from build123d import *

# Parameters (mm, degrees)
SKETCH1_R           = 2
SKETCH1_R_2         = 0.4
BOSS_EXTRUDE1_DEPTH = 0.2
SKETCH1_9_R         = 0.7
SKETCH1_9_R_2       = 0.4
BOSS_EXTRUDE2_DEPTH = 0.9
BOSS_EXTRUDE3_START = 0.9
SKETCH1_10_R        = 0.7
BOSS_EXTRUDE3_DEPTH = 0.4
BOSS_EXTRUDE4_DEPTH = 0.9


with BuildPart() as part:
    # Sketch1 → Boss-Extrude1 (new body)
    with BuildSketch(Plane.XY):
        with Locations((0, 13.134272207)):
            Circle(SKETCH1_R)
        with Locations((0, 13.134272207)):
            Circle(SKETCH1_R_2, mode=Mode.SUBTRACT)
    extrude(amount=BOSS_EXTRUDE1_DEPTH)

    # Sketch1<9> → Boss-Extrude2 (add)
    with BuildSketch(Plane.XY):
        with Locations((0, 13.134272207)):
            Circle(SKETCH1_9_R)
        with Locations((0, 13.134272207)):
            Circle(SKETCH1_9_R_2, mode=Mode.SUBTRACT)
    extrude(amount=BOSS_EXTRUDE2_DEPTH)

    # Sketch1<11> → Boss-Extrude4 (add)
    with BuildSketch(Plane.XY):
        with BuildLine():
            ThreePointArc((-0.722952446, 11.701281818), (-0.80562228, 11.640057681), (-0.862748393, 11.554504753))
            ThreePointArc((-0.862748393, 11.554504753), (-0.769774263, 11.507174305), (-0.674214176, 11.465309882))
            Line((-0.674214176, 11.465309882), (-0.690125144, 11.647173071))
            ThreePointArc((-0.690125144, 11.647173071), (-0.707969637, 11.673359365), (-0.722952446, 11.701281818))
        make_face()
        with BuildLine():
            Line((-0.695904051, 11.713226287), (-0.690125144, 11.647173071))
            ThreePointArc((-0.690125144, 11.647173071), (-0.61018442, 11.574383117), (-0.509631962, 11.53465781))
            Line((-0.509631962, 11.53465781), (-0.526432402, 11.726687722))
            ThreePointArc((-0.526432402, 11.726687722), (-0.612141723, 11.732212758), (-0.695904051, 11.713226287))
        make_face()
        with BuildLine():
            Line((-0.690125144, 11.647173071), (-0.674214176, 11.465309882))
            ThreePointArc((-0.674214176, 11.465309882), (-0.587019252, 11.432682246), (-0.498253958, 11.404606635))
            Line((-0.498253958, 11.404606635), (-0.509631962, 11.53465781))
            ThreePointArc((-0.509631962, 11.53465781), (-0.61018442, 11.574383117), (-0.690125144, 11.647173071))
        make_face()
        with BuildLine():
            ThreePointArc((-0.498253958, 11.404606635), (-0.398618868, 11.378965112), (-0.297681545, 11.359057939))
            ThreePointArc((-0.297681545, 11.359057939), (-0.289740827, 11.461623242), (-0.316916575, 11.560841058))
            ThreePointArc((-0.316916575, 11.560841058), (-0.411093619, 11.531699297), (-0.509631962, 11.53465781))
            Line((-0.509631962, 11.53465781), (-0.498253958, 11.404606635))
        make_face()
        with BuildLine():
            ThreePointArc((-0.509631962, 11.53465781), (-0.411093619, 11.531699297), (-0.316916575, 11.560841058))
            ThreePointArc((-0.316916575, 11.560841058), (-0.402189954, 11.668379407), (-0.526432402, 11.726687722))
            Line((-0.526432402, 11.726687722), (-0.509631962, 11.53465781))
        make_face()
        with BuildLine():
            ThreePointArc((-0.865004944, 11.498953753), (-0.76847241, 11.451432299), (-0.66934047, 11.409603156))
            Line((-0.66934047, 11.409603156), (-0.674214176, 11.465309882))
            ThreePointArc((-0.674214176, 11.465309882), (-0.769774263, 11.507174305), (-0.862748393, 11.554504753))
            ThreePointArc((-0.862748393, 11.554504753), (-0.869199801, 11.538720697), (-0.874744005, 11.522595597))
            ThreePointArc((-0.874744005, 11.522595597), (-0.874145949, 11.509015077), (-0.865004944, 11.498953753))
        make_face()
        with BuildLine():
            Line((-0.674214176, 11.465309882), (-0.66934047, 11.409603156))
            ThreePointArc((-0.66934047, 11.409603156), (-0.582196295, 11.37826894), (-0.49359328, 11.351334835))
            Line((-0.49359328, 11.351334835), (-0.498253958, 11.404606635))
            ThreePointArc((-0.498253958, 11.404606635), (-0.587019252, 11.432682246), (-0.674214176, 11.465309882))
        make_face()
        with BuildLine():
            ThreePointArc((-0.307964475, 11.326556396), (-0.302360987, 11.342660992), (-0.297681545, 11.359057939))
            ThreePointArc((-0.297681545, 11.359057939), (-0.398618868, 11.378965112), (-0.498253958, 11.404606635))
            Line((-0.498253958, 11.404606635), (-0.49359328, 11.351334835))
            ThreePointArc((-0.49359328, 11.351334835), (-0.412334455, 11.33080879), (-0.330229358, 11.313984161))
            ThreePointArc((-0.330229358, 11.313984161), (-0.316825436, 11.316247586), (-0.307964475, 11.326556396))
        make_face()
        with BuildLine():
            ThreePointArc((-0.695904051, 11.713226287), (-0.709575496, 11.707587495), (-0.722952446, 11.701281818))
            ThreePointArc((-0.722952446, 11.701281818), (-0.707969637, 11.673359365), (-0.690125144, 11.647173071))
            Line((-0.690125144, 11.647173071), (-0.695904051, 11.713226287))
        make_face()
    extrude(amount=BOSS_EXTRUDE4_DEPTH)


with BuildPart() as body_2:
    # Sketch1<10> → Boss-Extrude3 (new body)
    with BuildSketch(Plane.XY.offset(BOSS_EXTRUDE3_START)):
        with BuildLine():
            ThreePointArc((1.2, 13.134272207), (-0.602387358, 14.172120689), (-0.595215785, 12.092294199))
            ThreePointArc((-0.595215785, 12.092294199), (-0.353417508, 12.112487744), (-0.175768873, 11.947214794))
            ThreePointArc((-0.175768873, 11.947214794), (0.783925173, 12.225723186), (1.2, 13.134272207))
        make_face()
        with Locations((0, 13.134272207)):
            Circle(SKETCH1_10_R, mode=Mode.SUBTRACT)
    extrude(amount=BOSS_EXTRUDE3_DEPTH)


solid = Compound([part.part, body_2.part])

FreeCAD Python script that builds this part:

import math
import FreeCAD as App
import Part
import Sketcher

V = App.Vector
Q = App.Units.Quantity

doc = App.newDocument("Part")
body = doc.addObject("PartDesign::Body", "Body")

sketch1 = body.newObject("Sketcher::SketchObject", "Sketch")
sketch1.AttachmentSupport = (doc.getObject("XY_Plane"), [""])
sketch1.MapMode = "FlatFace"
sketch1.addGeometry(Part.Circle(V(0, 13.13, 0), V(0, 0, 1), 2), False)
sketch1.addGeometry(Part.Circle(V(0, 13.13, 0), V(0, 0, 1), 0.4), False)
sketch1.addConstraint(Sketcher.Constraint("Coincident", 1, 3, 0, 3))
sketch1.addConstraint(Sketcher.Constraint("PointOnObject", 0, 3, -2))
sketch1.addConstraint(Sketcher.Constraint("Diameter", 0, Q("4 mm")))
sketch1.addConstraint(Sketcher.Constraint("Diameter", 1, Q("0.8 mm")))
sketch1.addConstraint(Sketcher.Constraint("DistanceY", -1, 1, 0, 3, Q("13.134272 mm")))
pad1 = body.newObject("PartDesign::Pad", "Pad")
pad1.Profile = sketch1
pad1.Length = 0.2

sketch2 = body.newObject("Sketcher::SketchObject", "Sketch001")
sketch2.AttachmentSupport = (doc.getObject("XY_Plane"), [""])
sketch2.MapMode = "FlatFace"
sketch2.addGeometry(Part.Circle(V(0, 13.13, 0), V(0, 0, 1), 0.7), False)
sketch2.addGeometry(Part.Circle(V(0, 13.13, 0), V(0, 0, 1), 0.4), False)
sketch2.addConstraint(Sketcher.Constraint("Coincident", 1, 3, 0, 3))
sketch2.addConstraint(Sketcher.Constraint("PointOnObject", 0, 3, -2))
sketch2.addConstraint(Sketcher.Constraint("Diameter", 0, Q("1.4 mm")))
sketch2.addConstraint(Sketcher.Constraint("Diameter", 1, Q("0.8 mm")))
sketch2.addConstraint(Sketcher.Constraint("DistanceY", -1, 1, 0, 3, Q("13.134272 mm")))
pad2 = body.newObject("PartDesign::Pad", "Pad001")
pad2.Profile = sketch2
pad2.Length = 0.9

sketch3 = body.newObject("Sketcher::SketchObject", "Sketch002")
sketch3.AttachmentSupport = (doc.getObject("XY_Plane"), [""])
sketch3.MapMode = "FlatFace"
sketch3.addGeometry(Part.ArcOfCircle(Part.Circle(V(-0.588, 11.433, 0), V(0, 0, 1), 0.3), math.radians(117), math.radians(156)), False)
sketch3.addGeometry(Part.ArcOfCircle(Part.Circle(V(-0.588, 11.433, 0), V(0, 0, 1), 0.3), math.radians(156.14), math.radians(162.65)), False)
sketch3.addGeometry(Part.ArcOfCircle(Part.Circle(V(-0.856, 11.517, 0), V(0, 0, 1), 0.02), math.radians(163), math.radians(242)), False)
sketch3.addGeometry(Part.ArcOfCircle(Part.Circle(V(0, 13.134, 0), V(0, 0, 1), 1.85), math.radians(-117.88), math.radians(-111.21)), False)
sketch3.addGeometry(Part.ArcOfCircle(Part.Circle(V(0, 13.134, 0), V(0, 0, 1), 1.85), math.radians(-111.21), math.radians(-105.47)), False)
sketch3.addGeometry(Part.ArcOfCircle(Part.Circle(V(0, 13.134, 0), V(0, 0, 1), 1.85), math.radians(-105.47), math.radians(-100.28)), False)
sketch3.addGeometry(Part.ArcOfCircle(Part.Circle(V(-0.327, 11.334, 0), V(0, 0, 1), 0.02), math.radians(-100), math.radians(-21)), False)
sketch3.addGeometry(Part.ArcOfCircle(Part.Circle(V(-0.588, 11.433, 0), V(0, 0, 1), 0.3), math.radians(-20.81), math.radians(-14.3)), False)
sketch3.addGeometry(Part.ArcOfCircle(Part.Circle(V(-0.588, 11.433, 0), V(0, 0, 1), 0.3), math.radians(-14), math.radians(25)), False)
sketch3.addGeometry(Part.ArcOfCircle(Part.Circle(V(-0.588, 11.433, 0), V(0, 0, 1), 0.3), math.radians(25), math.radians(78)), False)
sketch3.addGeometry(Part.ArcOfCircle(Part.Circle(V(-0.588, 11.433, 0), V(0, 0, 1), 0.3), math.radians(78), math.radians(111)), False)
sketch3.addGeometry(Part.ArcOfCircle(Part.Circle(V(-0.588, 11.433, 0), V(0, 0, 1), 0.3), math.radians(111), math.radians(116.65)), False)
sketch3.addConstraint(Sketcher.Constraint("Tangent", 0, 2, 1, 1))
sketch3.addConstraint(Sketcher.Constraint("Tangent", 1, 2, 2, 1))
sketch3.addConstraint(Sketcher.Constraint("Tangent", 2, 2, 3, 1))
sketch3.addConstraint(Sketcher.Constraint("Tangent", 3, 2, 4, 1))
sketch3.addConstraint(Sketcher.Constraint("Tangent", 4, 2, 5, 1))
sketch3.addConstraint(Sketcher.Constraint("Tangent", 5, 2, 6, 1))
sketch3.addConstraint(Sketcher.Constraint("Tangent", 6, 2, 7, 1))
sketch3.addConstraint(Sketcher.Constraint("Tangent", 7, 2, 8, 1))
sketch3.addConstraint(Sketcher.Constraint("Tangent", 8, 2, 9, 1))
sketch3.addConstraint(Sketcher.Constraint("Tangent", 9, 2, 10, 1))
sketch3.addConstraint(Sketcher.Constraint("Tangent", 10, 2, 11, 1))
sketch3.addConstraint(Sketcher.Constraint("Tangent", 11, 2, 0, 1))
sketch3.addConstraint(Sketcher.Constraint("Coincident", 5, 3, 3, 3))
sketch3.addConstraint(Sketcher.Constraint("Coincident", 7, 3, 0, 3))
sketch3.addConstraint(Sketcher.Constraint("Coincident", 9, 3, 0, 3))
sketch3.addConstraint(Sketcher.Constraint("Equal", 0, 1))
sketch3.addConstraint(Sketcher.Constraint("Equal", 2, 6))
sketch3.addConstraint(Sketcher.Constraint("Equal", 1, 7))
sketch3.addConstraint(Sketcher.Constraint("PointOnObject", 3, 3, -2))
sketch3.addConstraint(Sketcher.Constraint("Radius", 0, Q("0.3 mm")))
sketch3.addConstraint(Sketcher.Constraint("Radius", 2, Q("0.02 mm")))
sketch3.addConstraint(Sketcher.Constraint("Radius", 3, Q("1.85 mm")))
sketch3.addConstraint(Sketcher.Constraint("DistanceY", 11, 3, 2, 2, Q("0.065799 mm")))
sketch3.addConstraint(Sketcher.Constraint("DistanceY", 6, 2, 7, 3, Q("0.106598 mm")))
sketch3.addConstraint(Sketcher.Constraint("DistanceY", 6, 2, 7, 2, Q("0.032502 mm")))
sketch3.addConstraint(Sketcher.Constraint("DistanceX", 2, 2, 10, 2, Q("0.169101 mm")))
sketch3.addConstraint(Sketcher.Constraint("DistanceX", 2, 3, 11, 2, Q("0.132701 mm")))
sketch3.addConstraint(Sketcher.Constraint("DistanceX", 0, 2, -1, 1, Q("0.862748 mm")))
sketch3.addConstraint(Sketcher.Constraint("DistanceX", 3, 2, -1, 1, Q("0.66934 mm")))
sketch3.addConstraint(Sketcher.Constraint("DistanceY", -1, 1, 8, 2, Q("11.560841 mm")))
sketch3.addConstraint(Sketcher.Constraint("DistanceY", -1, 1, 11, 2, Q("11.701282 mm")))
sketch3.addConstraint(Sketcher.Constraint("DistanceY", 4, 2, 7, 3, Q("0.08182 mm")))
sketch3.addConstraint(Sketcher.Constraint("DistanceX", 10, 2, 9, 2, Q("0.169472 mm")))
pad3 = body.newObject("PartDesign::Pad", "Pad002")
pad3.Profile = sketch3
pad3.Length = 0.9
body2 = doc.addObject("PartDesign::Body", "Body001")

sketch4 = body2.newObject("Sketcher::SketchObject", "Sketch003")
sketch4.AttachmentSupport = (doc.getObject("XY_Plane001"), [""])
sketch4.MapMode = "FlatFace"
sketch4.AttachmentOffset = App.Placement(V(0, 0, 0.9), App.Rotation())
sketch4.addGeometry(Part.ArcOfCircle(Part.Circle(V(0, 13.13, 0), V(0, 0, 1), 1.2), math.radians(0), math.radians(240)), False)
sketch4.addGeometry(Part.ArcOfCircle(Part.Circle(V(-0.45, 11.83, 0), V(0, 0, 1), 0.3), math.radians(23), math.radians(119)), False)
sketch4.addGeometry(Part.ArcOfCircle(Part.Circle(V(0, 13.13, 0), V(0, 0, 1), 1.2), math.radians(-98), math.radians(0)), False)
sketch4.addGeometry(Part.Circle(V(0, 13.13, 0), V(0, 0, 1), 0.7), False)
sketch4.addConstraint(Sketcher.Constraint("Coincident", 0, 2, 1, 2))
sketch4.addConstraint(Sketcher.Constraint("Coincident", 1, 1, 2, 1))
sketch4.addConstraint(Sketcher.Constraint("Tangent", 2, 2, 0, 1))
sketch4.addConstraint(Sketcher.Constraint("Coincident", 3, 3, 0, 3))
sketch4.addConstraint(Sketcher.Constraint("Equal", 0, 2))
sketch4.addConstraint(Sketcher.Constraint("PointOnObject", 0, 3, -2))
sketch4.addConstraint(Sketcher.Constraint("Horizontal", 3, 3, 2, 2))
sketch4.addConstraint(Sketcher.Constraint("Diameter", 3, Q("1.4 mm")))
sketch4.addConstraint(Sketcher.Constraint("Radius", 0, Q("1.2 mm")))
sketch4.addConstraint(Sketcher.Constraint("Radius", 1, Q("0.3 mm")))
sketch4.addConstraint(Sketcher.Constraint("DistanceY", -1, 1, 1, 3, Q("11.828968 mm")))
sketch4.addConstraint(Sketcher.Constraint("DistanceX", 1, 1, -1, 1, Q("0.175769 mm")))
sketch4.addConstraint(Sketcher.Constraint("DistanceY", 0, 2, 2, 3, Q("1.041978 mm")))
pad4 = body2.newObject("PartDesign::Pad", "Pad003")
pad4.Profile = sketch4
pad4.Length = 0.4

doc.recompute()
